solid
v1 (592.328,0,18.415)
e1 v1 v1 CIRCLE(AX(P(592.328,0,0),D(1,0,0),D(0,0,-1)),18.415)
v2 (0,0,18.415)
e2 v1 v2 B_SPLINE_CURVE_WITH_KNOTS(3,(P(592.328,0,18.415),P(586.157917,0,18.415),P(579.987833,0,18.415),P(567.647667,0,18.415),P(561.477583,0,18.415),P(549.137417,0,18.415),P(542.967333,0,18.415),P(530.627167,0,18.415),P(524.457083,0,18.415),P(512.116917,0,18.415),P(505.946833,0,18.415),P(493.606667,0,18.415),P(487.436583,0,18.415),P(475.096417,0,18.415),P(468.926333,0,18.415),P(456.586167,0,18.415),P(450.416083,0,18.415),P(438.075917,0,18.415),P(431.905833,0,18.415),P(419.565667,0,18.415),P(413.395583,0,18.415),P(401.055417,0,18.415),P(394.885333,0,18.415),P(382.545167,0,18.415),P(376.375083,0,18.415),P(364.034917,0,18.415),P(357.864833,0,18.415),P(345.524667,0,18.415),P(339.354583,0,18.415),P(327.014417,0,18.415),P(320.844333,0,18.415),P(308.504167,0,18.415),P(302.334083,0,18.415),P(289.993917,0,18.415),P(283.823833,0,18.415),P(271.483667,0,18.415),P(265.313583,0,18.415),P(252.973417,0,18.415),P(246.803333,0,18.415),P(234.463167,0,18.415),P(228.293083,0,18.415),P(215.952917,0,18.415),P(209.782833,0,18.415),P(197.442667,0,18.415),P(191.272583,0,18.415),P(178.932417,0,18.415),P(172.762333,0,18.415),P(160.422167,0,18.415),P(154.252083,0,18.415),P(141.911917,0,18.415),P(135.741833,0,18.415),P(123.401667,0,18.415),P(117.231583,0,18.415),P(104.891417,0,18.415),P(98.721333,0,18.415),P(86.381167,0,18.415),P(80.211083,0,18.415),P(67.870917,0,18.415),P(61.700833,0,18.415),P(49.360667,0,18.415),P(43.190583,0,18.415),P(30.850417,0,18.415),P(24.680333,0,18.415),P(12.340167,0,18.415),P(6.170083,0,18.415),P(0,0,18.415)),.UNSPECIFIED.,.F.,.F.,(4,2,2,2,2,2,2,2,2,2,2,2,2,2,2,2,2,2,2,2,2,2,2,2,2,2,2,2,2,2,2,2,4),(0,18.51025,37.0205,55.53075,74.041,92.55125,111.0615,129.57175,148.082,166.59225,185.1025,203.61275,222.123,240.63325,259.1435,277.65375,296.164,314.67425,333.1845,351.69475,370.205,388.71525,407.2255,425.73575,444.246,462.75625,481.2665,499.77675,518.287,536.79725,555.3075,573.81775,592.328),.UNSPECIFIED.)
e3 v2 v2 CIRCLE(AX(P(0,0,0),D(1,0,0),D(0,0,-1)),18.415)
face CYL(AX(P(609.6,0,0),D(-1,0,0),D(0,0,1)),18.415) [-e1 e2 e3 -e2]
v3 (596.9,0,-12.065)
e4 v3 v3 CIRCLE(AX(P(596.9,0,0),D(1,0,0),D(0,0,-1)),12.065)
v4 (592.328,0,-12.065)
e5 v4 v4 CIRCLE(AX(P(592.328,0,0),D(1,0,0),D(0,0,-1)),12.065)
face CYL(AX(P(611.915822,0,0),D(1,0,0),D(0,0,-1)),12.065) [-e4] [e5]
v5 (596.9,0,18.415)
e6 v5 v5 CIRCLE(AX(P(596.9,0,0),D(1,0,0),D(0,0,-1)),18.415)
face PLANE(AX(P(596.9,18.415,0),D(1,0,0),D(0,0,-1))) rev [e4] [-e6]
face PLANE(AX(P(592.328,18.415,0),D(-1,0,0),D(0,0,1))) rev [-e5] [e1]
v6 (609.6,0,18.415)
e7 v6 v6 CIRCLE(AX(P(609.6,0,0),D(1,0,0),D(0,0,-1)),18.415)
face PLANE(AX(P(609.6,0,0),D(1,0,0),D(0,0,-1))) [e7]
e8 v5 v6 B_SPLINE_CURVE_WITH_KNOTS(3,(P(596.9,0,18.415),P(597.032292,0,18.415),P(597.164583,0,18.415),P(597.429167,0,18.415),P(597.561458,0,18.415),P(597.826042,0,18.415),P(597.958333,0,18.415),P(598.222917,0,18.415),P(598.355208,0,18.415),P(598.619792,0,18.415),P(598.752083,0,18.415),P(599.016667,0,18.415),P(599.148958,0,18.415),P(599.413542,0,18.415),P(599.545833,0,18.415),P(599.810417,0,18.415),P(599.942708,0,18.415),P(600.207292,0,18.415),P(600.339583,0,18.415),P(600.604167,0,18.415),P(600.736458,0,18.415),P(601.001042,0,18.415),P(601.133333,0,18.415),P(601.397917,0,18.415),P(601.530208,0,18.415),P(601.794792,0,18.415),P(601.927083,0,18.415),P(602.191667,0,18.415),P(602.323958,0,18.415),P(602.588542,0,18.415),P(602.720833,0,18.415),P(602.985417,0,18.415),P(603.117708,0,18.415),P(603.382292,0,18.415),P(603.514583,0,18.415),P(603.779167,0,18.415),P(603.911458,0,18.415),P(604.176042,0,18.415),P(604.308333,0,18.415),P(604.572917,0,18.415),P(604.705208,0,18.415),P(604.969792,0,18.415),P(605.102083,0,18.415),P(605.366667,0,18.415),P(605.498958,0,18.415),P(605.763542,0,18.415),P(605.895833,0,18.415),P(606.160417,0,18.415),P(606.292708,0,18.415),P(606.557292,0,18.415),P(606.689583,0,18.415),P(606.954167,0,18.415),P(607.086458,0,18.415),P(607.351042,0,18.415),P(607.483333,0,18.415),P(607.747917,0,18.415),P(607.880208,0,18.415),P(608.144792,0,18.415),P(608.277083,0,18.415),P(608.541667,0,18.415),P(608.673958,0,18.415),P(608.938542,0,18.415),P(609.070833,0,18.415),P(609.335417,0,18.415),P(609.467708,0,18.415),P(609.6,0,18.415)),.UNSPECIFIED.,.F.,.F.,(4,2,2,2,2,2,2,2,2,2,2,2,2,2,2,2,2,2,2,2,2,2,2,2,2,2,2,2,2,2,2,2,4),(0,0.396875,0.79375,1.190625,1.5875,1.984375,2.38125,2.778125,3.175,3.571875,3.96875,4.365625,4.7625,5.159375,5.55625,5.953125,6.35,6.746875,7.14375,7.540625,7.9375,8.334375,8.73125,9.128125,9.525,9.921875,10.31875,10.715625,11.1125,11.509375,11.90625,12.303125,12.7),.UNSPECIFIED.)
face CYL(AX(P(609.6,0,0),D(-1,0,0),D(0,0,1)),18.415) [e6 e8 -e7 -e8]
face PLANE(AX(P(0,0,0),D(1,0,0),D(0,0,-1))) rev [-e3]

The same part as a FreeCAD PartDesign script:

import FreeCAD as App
import Part
import Sketcher
from FreeCAD import Vector
Q = App.Units.Quantity


def add_polygon(sketch, points):
    """Adds a closed chain of lines whose ends are joined by coincident constraints."""
    first, n = sketch.GeometryCount, len(points)
    for a, b in zip(points, points[1:] + points[:1]):
        sketch.addGeometry(Part.LineSegment(App.Vector(*a, 0), App.Vector(*b, 0)), False)
    for i in range(n):
        sketch.addConstraint(Sketcher.Constraint("Coincident", first + i, 2, first + (i + 1) % n, 1))

doc = App.newDocument("Part")
body = doc.addObject("PartDesign::Body", "Body")

sketch1 = doc.addObject("Sketcher::SketchObject", "Sketch")
body.addObject(sketch1)
sketch1.AttachmentSupport = (doc.YZ_Plane, [""])
sketch1.MapMode = "FlatFace"
sketch1.addGeometry(Part.Circle(Vector(0, 0, 0), Vector(0, 0, 1), 18), False)
sketch1.addConstraint(Sketcher.Constraint("Coincident", 0, 3, -1, 1))
sketch1.addConstraint(Sketcher.Constraint("Diameter", 0, Q("1.45 in")))
pad1 = doc.addObject("PartDesign::Pad", "Pad")
body.addObject(pad1)
pad1.Profile = sketch1
pad1.Length = Q("24 in")

sketch2 = doc.addObject("Sketcher::SketchObject", "Sketch001")
body.addObject(sketch2)
sketch2.AttachmentSupport = (doc.XY_Plane, [""])
sketch2.MapMode = "FlatFace"
add_polygon(sketch2, [(592.3, 18.4), (592.3, 12.1), (596.9, 12.1), (596.9, 18.4)])
sketch2.addConstraint(Sketcher.Constraint("Vertical", 0))
sketch2.addConstraint(Sketcher.Constraint("Horizontal", 1))
sketch2.addConstraint(Sketcher.Constraint("Vertical", 2))
sketch2.addConstraint(Sketcher.Constraint("Horizontal", 3))
sketch2.addConstraint(Sketcher.Constraint("DistanceX", 1, 1, 1, 2, Q("0.18 in")))
sketch2.addConstraint(Sketcher.Constraint("DistanceY", 0, 2, 0, 1, Q("0.25 in")))
sketch2.addConstraint(Sketcher.Constraint("DistanceX", -1, 1, 1, 2, Q("23.5 in")))
sketch2.addConstraint(Sketcher.Constraint("DistanceY", -1, 1, 0, 2, Q("0.475 in")))
groove = doc.addObject("PartDesign::Groove", "Groove")
body.addObject(groove)
groove.Profile = sketch2
groove.ReferenceAxis = (sketch2, ["H_Axis"])
groove.Angle = 360

doc.recompute()
